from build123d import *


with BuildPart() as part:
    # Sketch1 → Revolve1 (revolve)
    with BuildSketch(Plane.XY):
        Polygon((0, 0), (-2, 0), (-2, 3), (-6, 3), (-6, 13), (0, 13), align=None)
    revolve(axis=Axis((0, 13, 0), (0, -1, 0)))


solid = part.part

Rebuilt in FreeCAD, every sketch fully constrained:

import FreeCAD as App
import Part
import Sketcher

V = App.Vector

doc = App.newDocument("Part")
params = doc.addObject("Spreadsheet::Sheet", "Params")
for row, (alias, value) in enumerate([
    ("sketch1_width", "2 mm"),
    ("sketch1_width2", "6 mm"),
    ("sketch1_height", "13 mm"),
    ("sketch1_height2", "10 mm"),
    ("revolution_angle", "360 deg"),
], start=1):
    params.set(f"A{row}", alias)
    params.set(f"B{row}", "=" + value)
    params.setAlias(f"B{row}", alias)

body = doc.addObject("PartDesign::Body", "Body")

sketch1 = body.newObject("Sketcher::SketchObject", "Sketch")
sketch1.AttachmentSupport = (doc.getObject("XY_Plane"), [""])
sketch1.MapMode = "FlatFace"
sketch1.addGeometry(Part.LineSegment(V(-2, 0, 0), V(0, 0, 0)), False)
sketch1.addGeometry(Part.LineSegment(V(0, 0, 0), V(0, 13, 0)), False)
sketch1.addGeometry(Part.LineSegment(V(0, 13, 0), V(-6, 13, 0)), False)
sketch1.addGeometry(Part.LineSegment(V(-6, 13, 0), V(-6, 3, 0)), False)
sketch1.addGeometry(Part.LineSegment(V(-6, 3, 0), V(-2, 3, 0)), False)
sketch1.addGeometry(Part.LineSegment(V(-2, 3, 0), V(-2, 0, 0)), False)
sketch1.addConstraint(Sketcher.Constraint("Coincident", 0, 2, 1, 1))
sketch1.addConstraint(Sketcher.Constraint("Coincident", 1, 2, 2, 1))
sketch1.addConstraint(Sketcher.Constraint("Coincident", 2, 2, 3, 1))
sketch1.addConstraint(Sketcher.Constraint("Coincident", 3, 2, 4, 1))
sketch1.addConstraint(Sketcher.Constraint("Coincident", 4, 2, 5, 1))
sketch1.addConstraint(Sketcher.Constraint("Coincident", 5, 2, 0, 1))
sketch1.addConstraint(Sketcher.Constraint("Horizontal", 0))
sketch1.addConstraint(Sketcher.Constraint("Vertical", 1))
sketch1.addConstraint(Sketcher.Constraint("Horizontal", 2))
sketch1.addConstraint(Sketcher.Constraint("Vertical", 3))
sketch1.addConstraint(Sketcher.Constraint("Horizontal", 4))
sketch1.addConstraint(Sketcher.Constraint("Vertical", 5))
sketch1.addConstraint(Sketcher.Constraint("Coincident", 0, 2, -1, 1))
sketch1.addConstraint(Sketcher.Constraint("DistanceX", 0, 1, 0, 2, 2.0))
sketch1.addConstraint(Sketcher.Constraint("DistanceX", 2, 2, 2, 1, 6.0))
sketch1.addConstraint(Sketcher.Constraint("DistanceY", 1, 1, 1, 2, 13.0))
sketch1.addConstraint(Sketcher.Constraint("DistanceY", 3, 2, 3, 1, 10.0))
sketch1.setExpression("Constraints[13]", "Params.sketch1_width")
sketch1.setExpression("Constraints[14]", "Params.sketch1_width2")
sketch1.setExpression("Constraints[15]", "Params.sketch1_height")
sketch1.setExpression("Constraints[16]", "Params.sketch1_height2")
revolution = body.newObject("PartDesign::Revolution", "Revolution")
revolution.Profile = sketch1
revolution.ReferenceAxis = (sketch1, ["V_Axis"])
revolution.setExpression("Angle", "Params.revolution_angle")

doc.recompute()
